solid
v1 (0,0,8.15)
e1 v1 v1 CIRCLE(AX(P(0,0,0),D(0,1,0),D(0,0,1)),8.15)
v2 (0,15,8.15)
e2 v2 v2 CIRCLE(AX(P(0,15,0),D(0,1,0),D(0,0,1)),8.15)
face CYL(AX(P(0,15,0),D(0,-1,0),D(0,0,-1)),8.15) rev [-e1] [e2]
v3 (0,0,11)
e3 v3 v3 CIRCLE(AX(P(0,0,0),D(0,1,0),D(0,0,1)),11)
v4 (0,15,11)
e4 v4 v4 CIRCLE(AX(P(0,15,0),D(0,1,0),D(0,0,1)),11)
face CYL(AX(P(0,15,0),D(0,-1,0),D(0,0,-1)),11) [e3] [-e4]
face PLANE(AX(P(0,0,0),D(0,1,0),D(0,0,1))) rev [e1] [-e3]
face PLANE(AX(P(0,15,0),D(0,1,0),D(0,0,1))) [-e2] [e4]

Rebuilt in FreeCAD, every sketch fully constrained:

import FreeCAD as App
import Part
import Sketcher

doc = App.newDocument("Part")
params = doc.addObject("Spreadsheet::Sheet", "Params")
for row, (alias, value) in enumerate([
    ("sketch1_diameter", "22 mm"),
    ("sketch1_diameter2", "16.3 mm"),
    ("pad1_length", "15 mm"),
], start=1):
    params.set(f"A{row}", alias)
    params.set(f"B{row}", "=" + value)
    params.setAlias(f"B{row}", alias)

body = doc.addObject("PartDesign::Body", "Body")

sketch1 = body.newObject("Sketcher::SketchObject", "Sketch")
sketch1.AttachmentSupport = (doc.getObject("XZ_Plane"), [""])
sketch1.MapMode = "FlatFace"
sketch1.addGeometry([
    Part.Circle(App.Vector(0, 0, 0), App.Vector(0, 0, 1), 11),
    Part.Circle(App.Vector(0, 0, 0), App.Vector(0, 0, 1), 8.15),
], False)
sketch1.addConstraint([
    Sketcher.Constraint("Coincident", 0, 3, -1, 1),
    Sketcher.Constraint("Coincident", 1, 3, -1, 1),
    Sketcher.Constraint("Diameter", 0, 22.0),
    Sketcher.Constraint("Diameter", 1, 16.3),
])
sketch1.setExpression("Constraints[2]", "Params.sketch1_diameter")
sketch1.setExpression("Constraints[3]", "Params.sketch1_diameter2")
pad1 = body.newObject("PartDesign::Pad", "Pad")
pad1.Profile = sketch1
pad1.setExpression("Length", "Params.pad1_length")
pad1.Reversed = True

doc.recompute()
